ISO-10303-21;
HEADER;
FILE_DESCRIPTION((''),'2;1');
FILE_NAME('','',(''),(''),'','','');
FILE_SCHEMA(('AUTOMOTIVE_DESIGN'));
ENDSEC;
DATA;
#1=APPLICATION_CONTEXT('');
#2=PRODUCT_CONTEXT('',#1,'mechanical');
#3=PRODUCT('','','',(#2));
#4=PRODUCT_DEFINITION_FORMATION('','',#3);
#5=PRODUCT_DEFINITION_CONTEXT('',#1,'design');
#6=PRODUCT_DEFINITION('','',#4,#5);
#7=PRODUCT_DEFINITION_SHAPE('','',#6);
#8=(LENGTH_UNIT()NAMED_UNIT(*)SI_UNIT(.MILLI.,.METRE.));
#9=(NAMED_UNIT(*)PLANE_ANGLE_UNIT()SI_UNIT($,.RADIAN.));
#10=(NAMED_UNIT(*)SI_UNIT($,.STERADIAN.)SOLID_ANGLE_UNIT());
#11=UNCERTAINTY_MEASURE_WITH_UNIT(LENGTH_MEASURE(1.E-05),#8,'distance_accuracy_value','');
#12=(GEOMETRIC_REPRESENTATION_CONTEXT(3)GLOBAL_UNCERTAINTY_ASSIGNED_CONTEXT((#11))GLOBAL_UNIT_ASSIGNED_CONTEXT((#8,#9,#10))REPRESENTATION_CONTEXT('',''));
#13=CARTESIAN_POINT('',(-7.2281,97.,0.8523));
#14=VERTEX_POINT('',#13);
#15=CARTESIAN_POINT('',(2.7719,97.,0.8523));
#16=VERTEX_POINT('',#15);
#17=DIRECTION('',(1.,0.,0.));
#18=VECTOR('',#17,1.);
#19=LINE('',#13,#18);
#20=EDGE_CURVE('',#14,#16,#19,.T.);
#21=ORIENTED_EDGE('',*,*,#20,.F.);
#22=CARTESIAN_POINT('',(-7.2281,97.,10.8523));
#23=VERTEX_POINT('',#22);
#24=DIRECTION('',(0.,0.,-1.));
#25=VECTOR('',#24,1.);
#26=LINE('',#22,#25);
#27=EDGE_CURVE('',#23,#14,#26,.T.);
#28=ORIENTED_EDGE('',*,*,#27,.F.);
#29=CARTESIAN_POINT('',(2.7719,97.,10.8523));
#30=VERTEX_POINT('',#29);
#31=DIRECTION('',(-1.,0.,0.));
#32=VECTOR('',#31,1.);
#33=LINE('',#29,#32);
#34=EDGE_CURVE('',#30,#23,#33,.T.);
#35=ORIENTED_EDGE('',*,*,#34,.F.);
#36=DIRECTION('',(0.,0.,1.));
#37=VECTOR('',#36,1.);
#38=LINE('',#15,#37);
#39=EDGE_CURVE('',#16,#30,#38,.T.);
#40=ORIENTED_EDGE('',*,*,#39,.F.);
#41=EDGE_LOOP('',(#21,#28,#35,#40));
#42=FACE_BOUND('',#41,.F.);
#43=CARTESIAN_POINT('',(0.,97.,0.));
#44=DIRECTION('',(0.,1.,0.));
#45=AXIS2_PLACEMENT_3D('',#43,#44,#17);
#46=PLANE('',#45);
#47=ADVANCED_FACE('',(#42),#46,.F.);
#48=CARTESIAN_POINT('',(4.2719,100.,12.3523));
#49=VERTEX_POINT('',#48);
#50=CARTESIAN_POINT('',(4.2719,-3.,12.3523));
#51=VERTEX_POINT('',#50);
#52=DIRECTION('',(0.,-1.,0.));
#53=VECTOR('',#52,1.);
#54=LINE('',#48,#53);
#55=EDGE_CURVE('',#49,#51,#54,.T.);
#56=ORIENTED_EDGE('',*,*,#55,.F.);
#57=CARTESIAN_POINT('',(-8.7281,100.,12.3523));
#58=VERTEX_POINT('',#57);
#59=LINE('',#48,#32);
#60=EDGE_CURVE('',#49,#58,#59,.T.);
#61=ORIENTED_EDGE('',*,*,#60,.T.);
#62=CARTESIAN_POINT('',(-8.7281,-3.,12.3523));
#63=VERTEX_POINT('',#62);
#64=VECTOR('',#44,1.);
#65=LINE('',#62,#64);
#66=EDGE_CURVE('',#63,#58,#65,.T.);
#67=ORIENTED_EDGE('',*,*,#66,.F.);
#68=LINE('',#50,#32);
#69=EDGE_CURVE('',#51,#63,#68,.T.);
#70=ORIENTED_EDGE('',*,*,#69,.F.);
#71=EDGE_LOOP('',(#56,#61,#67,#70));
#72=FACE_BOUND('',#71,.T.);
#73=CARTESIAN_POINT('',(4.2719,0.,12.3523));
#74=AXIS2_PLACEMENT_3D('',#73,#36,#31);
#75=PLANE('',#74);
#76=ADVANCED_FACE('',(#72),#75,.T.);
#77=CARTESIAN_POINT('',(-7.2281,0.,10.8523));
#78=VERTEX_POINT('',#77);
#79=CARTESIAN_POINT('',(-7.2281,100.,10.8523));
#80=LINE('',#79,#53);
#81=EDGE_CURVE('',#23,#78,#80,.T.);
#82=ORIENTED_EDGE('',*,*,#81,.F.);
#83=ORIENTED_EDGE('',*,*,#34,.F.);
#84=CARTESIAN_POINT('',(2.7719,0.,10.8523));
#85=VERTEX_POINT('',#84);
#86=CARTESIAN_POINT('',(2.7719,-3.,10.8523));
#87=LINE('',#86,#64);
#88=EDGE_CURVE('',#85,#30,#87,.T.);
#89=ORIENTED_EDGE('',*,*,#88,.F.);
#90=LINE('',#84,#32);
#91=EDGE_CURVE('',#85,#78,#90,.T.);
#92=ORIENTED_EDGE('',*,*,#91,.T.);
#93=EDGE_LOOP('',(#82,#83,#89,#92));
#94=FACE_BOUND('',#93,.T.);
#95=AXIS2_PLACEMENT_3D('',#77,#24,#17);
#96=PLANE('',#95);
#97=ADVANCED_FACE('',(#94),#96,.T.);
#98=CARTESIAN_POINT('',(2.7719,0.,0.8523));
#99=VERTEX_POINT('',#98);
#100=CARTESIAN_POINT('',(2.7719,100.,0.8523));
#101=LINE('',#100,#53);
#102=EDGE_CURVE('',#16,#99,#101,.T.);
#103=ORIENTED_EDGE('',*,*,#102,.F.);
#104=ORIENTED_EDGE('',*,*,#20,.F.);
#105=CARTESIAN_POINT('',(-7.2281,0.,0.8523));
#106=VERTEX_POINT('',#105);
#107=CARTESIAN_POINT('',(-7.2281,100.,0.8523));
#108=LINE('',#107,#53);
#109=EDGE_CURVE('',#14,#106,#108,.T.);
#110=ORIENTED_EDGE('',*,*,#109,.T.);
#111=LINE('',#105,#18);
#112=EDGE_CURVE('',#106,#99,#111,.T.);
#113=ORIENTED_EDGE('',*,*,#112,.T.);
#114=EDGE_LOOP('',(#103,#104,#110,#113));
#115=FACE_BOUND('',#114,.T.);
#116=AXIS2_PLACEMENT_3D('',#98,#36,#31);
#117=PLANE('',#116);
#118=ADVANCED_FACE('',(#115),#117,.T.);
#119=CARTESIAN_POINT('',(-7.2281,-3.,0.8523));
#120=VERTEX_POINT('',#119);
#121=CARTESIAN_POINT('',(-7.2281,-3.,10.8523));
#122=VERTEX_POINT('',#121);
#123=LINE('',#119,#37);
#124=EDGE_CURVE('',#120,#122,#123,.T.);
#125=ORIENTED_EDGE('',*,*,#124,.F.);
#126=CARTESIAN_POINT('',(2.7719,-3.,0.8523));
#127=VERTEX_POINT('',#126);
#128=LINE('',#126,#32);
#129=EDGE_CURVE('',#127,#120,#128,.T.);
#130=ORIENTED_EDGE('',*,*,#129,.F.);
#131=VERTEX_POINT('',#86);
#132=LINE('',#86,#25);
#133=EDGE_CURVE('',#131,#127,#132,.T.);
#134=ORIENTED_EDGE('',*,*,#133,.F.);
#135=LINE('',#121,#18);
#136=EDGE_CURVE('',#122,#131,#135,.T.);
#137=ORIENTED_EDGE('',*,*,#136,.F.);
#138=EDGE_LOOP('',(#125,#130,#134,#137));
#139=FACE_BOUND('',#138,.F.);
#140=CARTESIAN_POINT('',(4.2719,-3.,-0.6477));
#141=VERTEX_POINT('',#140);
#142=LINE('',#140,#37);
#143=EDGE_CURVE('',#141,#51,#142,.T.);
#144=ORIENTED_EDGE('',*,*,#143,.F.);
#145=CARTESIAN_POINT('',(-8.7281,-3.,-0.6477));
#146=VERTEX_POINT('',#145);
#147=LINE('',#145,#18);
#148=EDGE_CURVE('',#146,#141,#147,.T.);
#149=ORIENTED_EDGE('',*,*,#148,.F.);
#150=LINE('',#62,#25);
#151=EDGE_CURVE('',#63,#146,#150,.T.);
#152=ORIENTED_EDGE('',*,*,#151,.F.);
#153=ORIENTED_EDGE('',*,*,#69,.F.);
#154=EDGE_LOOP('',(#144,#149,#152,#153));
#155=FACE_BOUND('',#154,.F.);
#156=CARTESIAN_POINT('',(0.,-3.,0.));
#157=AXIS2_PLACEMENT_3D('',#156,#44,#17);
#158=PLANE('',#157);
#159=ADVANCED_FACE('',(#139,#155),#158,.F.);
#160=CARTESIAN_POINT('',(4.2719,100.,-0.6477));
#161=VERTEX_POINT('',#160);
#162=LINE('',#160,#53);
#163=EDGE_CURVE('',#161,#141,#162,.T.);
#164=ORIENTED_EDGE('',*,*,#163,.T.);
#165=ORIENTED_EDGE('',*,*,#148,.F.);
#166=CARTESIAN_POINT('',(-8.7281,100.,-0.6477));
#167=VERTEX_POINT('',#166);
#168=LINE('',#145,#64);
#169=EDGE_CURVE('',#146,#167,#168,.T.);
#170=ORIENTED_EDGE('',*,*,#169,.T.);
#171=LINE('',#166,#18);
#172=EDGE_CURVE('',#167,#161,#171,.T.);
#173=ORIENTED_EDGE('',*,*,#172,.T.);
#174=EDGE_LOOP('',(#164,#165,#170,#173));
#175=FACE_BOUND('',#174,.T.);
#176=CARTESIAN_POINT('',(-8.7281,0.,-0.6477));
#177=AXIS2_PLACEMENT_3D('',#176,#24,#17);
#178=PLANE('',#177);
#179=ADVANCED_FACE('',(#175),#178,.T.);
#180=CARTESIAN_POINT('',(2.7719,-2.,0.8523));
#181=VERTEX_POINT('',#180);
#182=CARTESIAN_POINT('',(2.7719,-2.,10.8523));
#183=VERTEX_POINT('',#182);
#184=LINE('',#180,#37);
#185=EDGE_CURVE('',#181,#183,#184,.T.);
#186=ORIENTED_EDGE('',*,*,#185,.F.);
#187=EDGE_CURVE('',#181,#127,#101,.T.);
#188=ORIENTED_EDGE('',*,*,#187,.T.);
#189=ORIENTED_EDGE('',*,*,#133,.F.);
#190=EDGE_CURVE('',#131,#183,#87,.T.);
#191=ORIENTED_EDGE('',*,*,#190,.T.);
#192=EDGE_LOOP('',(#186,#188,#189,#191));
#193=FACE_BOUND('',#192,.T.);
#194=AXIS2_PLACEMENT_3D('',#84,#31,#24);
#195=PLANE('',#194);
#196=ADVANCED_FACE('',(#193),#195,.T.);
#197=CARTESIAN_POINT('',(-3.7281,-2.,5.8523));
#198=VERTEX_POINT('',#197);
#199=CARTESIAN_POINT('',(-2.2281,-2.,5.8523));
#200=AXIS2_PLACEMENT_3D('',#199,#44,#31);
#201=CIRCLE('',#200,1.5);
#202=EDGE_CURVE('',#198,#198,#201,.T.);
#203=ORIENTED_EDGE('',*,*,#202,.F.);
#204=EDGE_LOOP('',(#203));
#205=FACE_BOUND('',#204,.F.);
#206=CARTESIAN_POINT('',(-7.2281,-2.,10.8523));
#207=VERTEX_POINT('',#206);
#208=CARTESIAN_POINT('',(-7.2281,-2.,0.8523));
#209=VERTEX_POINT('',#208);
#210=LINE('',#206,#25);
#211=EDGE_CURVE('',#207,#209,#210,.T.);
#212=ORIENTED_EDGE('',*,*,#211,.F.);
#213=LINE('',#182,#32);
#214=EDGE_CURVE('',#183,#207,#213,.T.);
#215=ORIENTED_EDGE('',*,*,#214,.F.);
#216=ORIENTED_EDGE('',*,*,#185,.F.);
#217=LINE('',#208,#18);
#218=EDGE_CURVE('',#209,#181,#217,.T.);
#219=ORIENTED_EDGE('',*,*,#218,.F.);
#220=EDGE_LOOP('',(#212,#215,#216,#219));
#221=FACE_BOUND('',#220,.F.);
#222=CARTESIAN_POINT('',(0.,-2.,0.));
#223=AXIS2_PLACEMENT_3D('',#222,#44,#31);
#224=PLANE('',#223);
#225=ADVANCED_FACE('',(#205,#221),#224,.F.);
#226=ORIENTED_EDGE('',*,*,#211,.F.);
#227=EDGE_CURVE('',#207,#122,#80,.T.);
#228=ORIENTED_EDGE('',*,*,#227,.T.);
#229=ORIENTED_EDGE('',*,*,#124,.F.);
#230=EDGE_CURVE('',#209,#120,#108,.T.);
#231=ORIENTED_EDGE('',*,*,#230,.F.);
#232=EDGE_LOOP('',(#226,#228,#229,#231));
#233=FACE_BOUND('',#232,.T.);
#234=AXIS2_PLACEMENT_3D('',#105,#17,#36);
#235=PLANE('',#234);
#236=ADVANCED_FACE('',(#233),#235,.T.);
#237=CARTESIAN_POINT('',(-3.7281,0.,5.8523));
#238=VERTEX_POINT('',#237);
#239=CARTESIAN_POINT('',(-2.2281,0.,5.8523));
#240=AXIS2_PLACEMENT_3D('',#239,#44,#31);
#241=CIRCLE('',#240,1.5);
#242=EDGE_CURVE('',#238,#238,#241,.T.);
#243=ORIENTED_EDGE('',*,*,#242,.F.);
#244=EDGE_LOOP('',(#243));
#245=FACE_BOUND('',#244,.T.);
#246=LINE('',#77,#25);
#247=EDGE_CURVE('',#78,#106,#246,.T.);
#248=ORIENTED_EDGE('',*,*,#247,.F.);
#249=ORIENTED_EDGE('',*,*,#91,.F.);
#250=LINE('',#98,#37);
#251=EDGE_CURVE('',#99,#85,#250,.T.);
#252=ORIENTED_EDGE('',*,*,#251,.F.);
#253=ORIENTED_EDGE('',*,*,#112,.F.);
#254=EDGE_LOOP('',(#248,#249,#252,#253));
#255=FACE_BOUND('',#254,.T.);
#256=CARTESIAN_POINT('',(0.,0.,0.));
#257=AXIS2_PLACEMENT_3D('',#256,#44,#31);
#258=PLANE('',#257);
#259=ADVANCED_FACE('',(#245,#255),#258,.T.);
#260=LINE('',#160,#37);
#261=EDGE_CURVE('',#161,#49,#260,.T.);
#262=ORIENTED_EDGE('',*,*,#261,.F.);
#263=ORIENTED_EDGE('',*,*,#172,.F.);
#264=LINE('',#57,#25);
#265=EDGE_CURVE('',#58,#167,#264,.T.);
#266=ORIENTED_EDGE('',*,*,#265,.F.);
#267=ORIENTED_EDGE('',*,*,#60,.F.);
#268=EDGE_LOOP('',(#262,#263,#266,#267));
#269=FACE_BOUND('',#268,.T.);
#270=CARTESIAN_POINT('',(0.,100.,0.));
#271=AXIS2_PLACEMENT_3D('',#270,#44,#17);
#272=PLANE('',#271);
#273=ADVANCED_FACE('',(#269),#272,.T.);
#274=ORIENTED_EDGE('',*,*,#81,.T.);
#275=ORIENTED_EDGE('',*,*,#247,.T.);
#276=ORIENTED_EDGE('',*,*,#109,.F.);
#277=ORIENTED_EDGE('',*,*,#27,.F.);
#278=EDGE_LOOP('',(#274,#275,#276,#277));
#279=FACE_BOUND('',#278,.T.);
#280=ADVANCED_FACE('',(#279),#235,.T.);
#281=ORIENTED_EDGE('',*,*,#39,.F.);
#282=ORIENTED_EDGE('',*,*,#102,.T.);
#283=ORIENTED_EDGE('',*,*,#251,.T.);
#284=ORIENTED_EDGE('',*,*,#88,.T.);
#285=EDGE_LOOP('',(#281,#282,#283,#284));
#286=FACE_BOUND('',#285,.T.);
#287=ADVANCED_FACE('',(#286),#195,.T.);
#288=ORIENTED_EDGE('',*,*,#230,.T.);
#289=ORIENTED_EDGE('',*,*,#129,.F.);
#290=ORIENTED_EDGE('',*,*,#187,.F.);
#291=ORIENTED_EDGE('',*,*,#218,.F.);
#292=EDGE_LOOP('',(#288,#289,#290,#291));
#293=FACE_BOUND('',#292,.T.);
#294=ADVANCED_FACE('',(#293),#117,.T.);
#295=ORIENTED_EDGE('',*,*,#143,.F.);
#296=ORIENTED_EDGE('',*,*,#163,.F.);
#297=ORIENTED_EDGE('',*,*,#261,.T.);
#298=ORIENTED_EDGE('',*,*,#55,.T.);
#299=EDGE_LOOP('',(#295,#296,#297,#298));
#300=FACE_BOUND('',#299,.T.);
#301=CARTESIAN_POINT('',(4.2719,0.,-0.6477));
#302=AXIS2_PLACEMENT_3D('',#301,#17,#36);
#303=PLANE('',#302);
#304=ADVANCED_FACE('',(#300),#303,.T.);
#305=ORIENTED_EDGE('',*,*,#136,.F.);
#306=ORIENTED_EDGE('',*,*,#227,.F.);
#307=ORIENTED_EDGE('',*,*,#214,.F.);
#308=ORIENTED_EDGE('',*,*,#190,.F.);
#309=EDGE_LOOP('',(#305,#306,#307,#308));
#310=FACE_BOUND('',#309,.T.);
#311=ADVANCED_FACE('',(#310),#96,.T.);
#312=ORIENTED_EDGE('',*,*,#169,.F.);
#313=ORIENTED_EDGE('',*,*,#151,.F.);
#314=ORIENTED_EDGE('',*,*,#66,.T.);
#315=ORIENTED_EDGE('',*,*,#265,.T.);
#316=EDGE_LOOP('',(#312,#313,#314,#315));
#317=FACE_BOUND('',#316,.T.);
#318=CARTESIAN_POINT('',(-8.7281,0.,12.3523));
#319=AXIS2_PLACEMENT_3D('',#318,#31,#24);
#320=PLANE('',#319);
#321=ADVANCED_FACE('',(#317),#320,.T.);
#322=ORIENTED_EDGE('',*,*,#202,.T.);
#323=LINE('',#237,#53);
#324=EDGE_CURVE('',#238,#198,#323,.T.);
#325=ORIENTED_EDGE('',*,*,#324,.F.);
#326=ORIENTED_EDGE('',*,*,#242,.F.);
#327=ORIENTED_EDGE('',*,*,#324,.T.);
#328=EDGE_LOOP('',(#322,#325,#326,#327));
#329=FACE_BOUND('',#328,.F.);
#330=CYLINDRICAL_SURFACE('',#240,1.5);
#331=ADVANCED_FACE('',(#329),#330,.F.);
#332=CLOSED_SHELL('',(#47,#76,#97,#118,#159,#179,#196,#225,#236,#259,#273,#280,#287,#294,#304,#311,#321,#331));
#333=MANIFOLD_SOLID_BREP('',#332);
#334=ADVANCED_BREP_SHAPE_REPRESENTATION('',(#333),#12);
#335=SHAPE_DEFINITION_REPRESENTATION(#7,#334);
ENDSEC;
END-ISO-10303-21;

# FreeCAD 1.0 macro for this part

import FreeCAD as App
import Part
import Sketcher
Q = App.Units.Quantity

doc = App.newDocument("Part")
body = doc.addObject("PartDesign::Body", "Body")

# Sketch on XZ plane
sketch1 = doc.addObject("Sketcher::SketchObject", "Sketch")
body.addObject(sketch1)
sketch1.AttachmentSupport = (doc.XZ_Plane, [""])
sketch1.MapMode = "FlatFace"
sketch1.addGeometry(Part.LineSegment(App.Vector(-5.2592, 4.1023, 0), App.Vector(-5.2592, 7.6023, 0)), False)
sketch1.addGeometry(Part.LineSegment(App.Vector(-5.2592, 7.6023, 0), App.Vector(-2.2281, 9.3523, 0)), False)
sketch1.addGeometry(Part.LineSegment(App.Vector(-2.2281, 9.3523, 0), App.Vector(0.803, 7.6023, 0)), False)
sketch1.addGeometry(Part.LineSegment(App.Vector(0.803, 7.6023, 0), App.Vector(0.803, 4.1023, 0)), False)
sketch1.addGeometry(Part.LineSegment(App.Vector(0.803, 4.1023, 0), App.Vector(-2.2281, 2.3523, 0)), False)
sketch1.addGeometry(Part.LineSegment(App.Vector(-2.2281, 2.3523, 0), App.Vector(-5.2592, 4.1023, 0)), False)
sketch1.addGeometry(Part.Circle(App.Vector(-2.2281, 5.8523, 0), App.Vector(0, 0, 1), 1.5), False)
sketch1.addConstraint(Sketcher.Constraint("Coincident", 0, 2, 1, 1))
sketch1.addConstraint(Sketcher.Constraint("Coincident", 1, 2, 2, 1))
sketch1.addConstraint(Sketcher.Constraint("Coincident", 2, 2, 3, 1))
sketch1.addConstraint(Sketcher.Constraint("Coincident", 3, 2, 4, 1))
sketch1.addConstraint(Sketcher.Constraint("Coincident", 4, 2, 5, 1))
sketch1.addConstraint(Sketcher.Constraint("Coincident", 5, 2, 0, 1))
sketch1.addConstraint(Sketcher.Constraint("Vertical", 0))
sketch1.addConstraint(Sketcher.Constraint("Vertical", 3))
sketch1.addConstraint(Sketcher.Constraint("Parallel", 1, 4))
sketch1.addConstraint(Sketcher.Constraint("Parallel", 2, 5))
sketch1.addConstraint(Sketcher.Constraint("Horizontal", 0, 2, 2, 2))
sketch1.addConstraint(Sketcher.Constraint("Horizontal", 3, 2, 5, 2))
sketch1.addConstraint(Sketcher.Constraint("Vertical", 6, 3, 1, 2))
sketch1.addConstraint(Sketcher.Constraint("Vertical", 1, 2, 4, 2))
sketch1.addConstraint(Sketcher.Constraint("Diameter", 6, 3.0))
sketch1.addConstraint(Sketcher.Constraint("DistanceY", 4, 2, 1, 2, 7.0))
sketch1.addConstraint(Sketcher.Constraint("Angle", 1, Q("30 deg")))
sketch1.addConstraint(Sketcher.Constraint("DistanceY", 0, 1, 0, 2, 3.5))
sketch1.addConstraint(Sketcher.Constraint("DistanceY", 6, 3, 1, 2, 3.5))
sketch1.addConstraint(Sketcher.Constraint("DistanceX", 6, 3, -1, 1, 2.228))
sketch1.addConstraint(Sketcher.Constraint("DistanceY", -1, 1, 6, 3, 5.8523))
pad1 = doc.addObject("PartDesign::Pad", "Pad")
body.addObject(pad1)
pad1.Profile = sketch1
pad1.Length = 2

# Sketch on XZ plane
sketch2 = doc.addObject("Sketcher::SketchObject", "Sketch001")
body.addObject(sketch2)
sketch2.AttachmentSupport = (doc.XZ_Plane, [""])
sketch2.MapMode = "FlatFace"
sketch2.AttachmentOffset = App.Placement(App.Vector(0, 0, 2), App.Rotation())
sketch2.addGeometry(Part.LineSegment(App.Vector(-7.2281, 10.8523, 0), App.Vector(-7.2281, 0.8523, 0)), False)
sketch2.addGeometry(Part.LineSegment(App.Vector(-7.2281, 0.8523, 0), App.Vector(2.7719, 0.8523, 0)), False)
sketch2.addGeometry(Part.LineSegment(App.Vector(2.7719, 0.8523, 0), App.Vector(2.7719, 10.8523, 0)), False)
sketch2.addGeometry(Part.LineSegment(App.Vector(2.7719, 10.8523, 0), App.Vector(-7.2281, 10.8523, 0)), False)
sketch2.addGeometry(Part.LineSegment(App.Vector(-5.2592, 4.1023, 0), App.Vector(-5.2592, 7.6023, 0)), False)
sketch2.addGeometry(Part.LineSegment(App.Vector(-5.2592, 7.6023, 0), App.Vector(-2.2281, 9.3523, 0)), False)
sketch2.addGeometry(Part.LineSegment(App.Vector(-2.2281, 9.3523, 0), App.Vector(0.803, 7.6023, 0)), False)
sketch2.addGeometry(Part.LineSegment(App.Vector(0.803, 7.6023, 0), App.Vector(0.803, 4.1023, 0)), False)
sketch2.addGeometry(Part.LineSegment(App.Vector(0.803, 4.1023, 0), App.Vector(-2.2281, 2.3523, 0)), False)
sketch2.addGeometry(Part.LineSegment(App.Vector(-2.2281, 2.3523, 0), App.Vector(-5.2592, 4.1023, 0)), False)
sketch2.addConstraint(Sketcher.Constraint("Coincident", 0, 2, 1, 1))
sketch2.addConstraint(Sketcher.Constraint("Coincident", 1, 2, 2, 1))
sketch2.addConstraint(Sketcher.Constraint("Coincident", 2, 2, 3, 1))
sketch2.addConstraint(Sketcher.Constraint("Coincident", 3, 2, 0, 1))
sketch2.addConstraint(Sketcher.Constraint("Coincident", 4, 2, 5, 1))
sketch2.addConstraint(Sketcher.Constraint("Coincident", 5, 2, 6, 1))
sketch2.addConstraint(Sketcher.Constraint("Coincident", 6, 2, 7, 1))
sketch2.addConstraint(Sketcher.Constraint("Coincident", 7, 2, 8, 1))
sketch2.addConstraint(Sketcher.Constraint("Coincident", 8, 2, 9, 1))
sketch2.addConstraint(Sketcher.Constraint("Coincident", 9, 2, 4, 1))
sketch2.addConstraint(Sketcher.Constraint("Vertical", 0))
sketch2.addConstraint(Sketcher.Constraint("Horizontal", 1))
sketch2.addConstraint(Sketcher.Constraint("Vertical", 2))
sketch2.addConstraint(Sketcher.Constraint("Horizontal", 3))
sketch2.addConstraint(Sketcher.Constraint("Vertical", 4))
sketch2.addConstraint(Sketcher.Constraint("Vertical", 7))
sketch2.addConstraint(Sketcher.Constraint("Parallel", 5, 8))
sketch2.addConstraint(Sketcher.Constraint("Parallel", 6, 9))
sketch2.addConstraint(Sketcher.Constraint("Horizontal", 4, 2, 6, 2))
sketch2.addConstraint(Sketcher.Constraint("Horizontal", 7, 2, 9, 2))
sketch2.addConstraint(Sketcher.Constraint("Vertical", 5, 2, 8, 2))
sketch2.addConstraint(Sketcher.Constraint("Equal", 3, 0))
sketch2.addConstraint(Sketcher.Constraint("DistanceX", 1, 1, 1, 2, 10.0))
sketch2.addConstraint(Sketcher.Constraint("Angle", 5, Q("30 deg")))
sketch2.addConstraint(Sketcher.Constraint("DistanceY", 4, 1, 4, 2, 3.5))
sketch2.addConstraint(Sketcher.Constraint("DistanceX", 5, 2, 2, 2, 5.0))
sketch2.addConstraint(Sketcher.Constraint("Distance", 5, 3.5))
sketch2.addConstraint(Sketcher.Constraint("DistanceY", 5, 2, 2, 2, 1.5))
sketch2.addConstraint(Sketcher.Constraint("DistanceX", 0, 2, -1, 1, 7.228))
sketch2.addConstraint(Sketcher.Constraint("DistanceY", -1, 1, 0, 2, 0.8523))
pad2 = doc.addObject("PartDesign::Pad", "Pad001")
body.addObject(pad2)
pad2.Profile = sketch2
pad2.Length = 2
pad2.Reversed = True

# Sketch on XZ plane
sketch3 = doc.addObject("Sketcher::SketchObject", "Sketch002")
body.addObject(sketch3)
sketch3.AttachmentSupport = (doc.XZ_Plane, [""])
sketch3.MapMode = "FlatFace"
sketch3.addGeometry(Part.LineSegment(App.Vector(4.2719, -0.6477, 0), App.Vector(-8.7281, -0.6477, 0)), False)
sketch3.addGeometry(Part.LineSegment(App.Vector(-8.7281, -0.6477, 0), App.Vector(-8.7281, 12.3523, 0)), False)
sketch3.addGeometry(Part.LineSegment(App.Vector(-8.7281, 12.3523, 0), App.Vector(4.2719, 12.3523, 0)), False)
sketch3.addGeometry(Part.LineSegment(App.Vector(4.2719, 12.3523, 0), App.Vector(4.2719, -0.6477, 0)), False)
sketch3.addGeometry(Part.LineSegment(App.Vector(2.7719, 0.8523, 0), App.Vector(2.7719, 10.8523, 0)), False)
sketch3.addGeometry(Part.LineSegment(App.Vector(2.7719, 10.8523, 0), App.Vector(-7.2281, 10.8523, 0)), False)
sketch3.addGeometry(Part.LineSegment(App.Vector(-7.2281, 10.8523, 0), App.Vector(-7.2281, 0.8523, 0)), False)
sketch3.addGeometry(Part.LineSegment(App.Vector(-7.2281, 0.8523, 0), App.Vector(2.7719, 0.8523, 0)), False)
sketch3.addConstraint(Sketcher.Constraint("Coincident", 0, 2, 1, 1))
sketch3.addConstraint(Sketcher.Constraint("Coincident", 1, 2, 2, 1))
sketch3.addConstraint(Sketcher.Constraint("Coincident", 2, 2, 3, 1))
sketch3.addConstraint(Sketcher.Constraint("Coincident", 3, 2, 0, 1))
sketch3.addConstraint(Sketcher.Constraint("Coincident", 4, 2, 5, 1))
sketch3.addConstraint(Sketcher.Constraint("Coincident", 5, 2, 6, 1))
sketch3.addConstraint(Sketcher.Constraint("Coincident", 6, 2, 7, 1))
sketch3.addConstraint(Sketcher.Constraint("Coincident", 7, 2, 4, 1))
sketch3.addConstraint(Sketcher.Constraint("Horizontal", 0))
sketch3.addConstraint(Sketcher.Constraint("Vertical", 1))
sketch3.addConstraint(Sketcher.Constraint("Horizontal", 2))
sketch3.addConstraint(Sketcher.Constraint("Vertical", 3))
sketch3.addConstraint(Sketcher.Constraint("Vertical", 4))
sketch3.addConstraint(Sketcher.Constraint("Horizontal", 5))
sketch3.addConstraint(Sketcher.Constraint("Vertical", 6))
sketch3.addConstraint(Sketcher.Constraint("Horizontal", 7))
sketch3.addConstraint(Sketcher.Constraint("Equal", 2, 1))
sketch3.addConstraint(Sketcher.Constraint("Equal", 7, 4))
sketch3.addConstraint(Sketcher.Constraint("DistanceX", 0, 2, 0, 1, 13.0))
sketch3.addConstraint(Sketcher.Constraint("DistanceX", 5, 2, 5, 1, 10.0))
sketch3.addConstraint(Sketcher.Constraint("DistanceX", 4, 2, 2, 2, 1.5))
sketch3.addConstraint(Sketcher.Constraint("DistanceY", 4, 2, 2, 2, 1.5))
sketch3.addConstraint(Sketcher.Constraint("DistanceX", 0, 2, -1, 1, 8.728))
sketch3.addConstraint(Sketcher.Constraint("DistanceY", 0, 2, -1, 1, 0.6477))
pad3 = doc.addObject("PartDesign::Pad", "Pad002")
body.addObject(pad3)
pad3.Profile = sketch3
pad3.Type = "TwoLengths"
pad3.Length = 100
pad3.Length2 = 3
pad3.Reversed = True

# Sketch on XZ plane
sketch4 = doc.addObject("Sketcher::SketchObject", "Sketch003")
body.addObject(sketch4)
sketch4.AttachmentSupport = (doc.XZ_Plane, [""])
sketch4.MapMode = "FlatFace"
sketch4.AttachmentOffset = App.Placement(App.Vector(0, 0, -100), App.Rotation())
sketch4.addGeometry(Part.LineSegment(App.Vector(-7.2281, 10.8523, 0), App.Vector(2.7719, 10.8523, 0)), False)
sketch4.addGeometry(Part.LineSegment(App.Vector(2.7719, 10.8523, 0), App.Vector(2.7719, 0.8523, 0)), False)
sketch4.addGeometry(Part.LineSegment(App.Vector(2.7719, 0.8523, 0), App.Vector(-7.2281, 0.8523, 0)), False)
sketch4.addGeometry(Part.LineSegment(App.Vector(-7.2281, 0.8523, 0), App.Vector(-7.2281, 10.8523, 0)), False)
sketch4.addConstraint(Sketcher.Constraint("Coincident", 0, 2, 1, 1))
sketch4.addConstraint(Sketcher.Constraint("Coincident", 1, 2, 2, 1))
sketch4.addConstraint(Sketcher.Constraint("Coincident", 2, 2, 3, 1))
sketch4.addConstraint(Sketcher.Constraint("Coincident", 3, 2, 0, 1))
sketch4.addConstraint(Sketcher.Constraint("Horizontal", 0))
sketch4.addConstraint(Sketcher.Constraint("Vertical", 1))
sketch4.addConstraint(Sketcher.Constraint("Horizontal", 2))
sketch4.addConstraint(Sketcher.Constraint("Vertical", 3))
sketch4.addConstraint(Sketcher.Constraint("Equal", 2, 1))
sketch4.addConstraint(Sketcher.Constraint("DistanceX", 0, 1, 0, 2, 10.0))
sketch4.addConstraint(Sketcher.Constraint("DistanceX", -1, 1, 0, 2, 2.772))
sketch4.addConstraint(Sketcher.Constraint("DistanceY", -1, 1, 0, 2, 10.8523))
pad4 = doc.addObject("PartDesign::Pad", "Pad003")
body.addObject(pad4)
pad4.Profile = sketch4
pad4.Length = 3

doc.recompute()
